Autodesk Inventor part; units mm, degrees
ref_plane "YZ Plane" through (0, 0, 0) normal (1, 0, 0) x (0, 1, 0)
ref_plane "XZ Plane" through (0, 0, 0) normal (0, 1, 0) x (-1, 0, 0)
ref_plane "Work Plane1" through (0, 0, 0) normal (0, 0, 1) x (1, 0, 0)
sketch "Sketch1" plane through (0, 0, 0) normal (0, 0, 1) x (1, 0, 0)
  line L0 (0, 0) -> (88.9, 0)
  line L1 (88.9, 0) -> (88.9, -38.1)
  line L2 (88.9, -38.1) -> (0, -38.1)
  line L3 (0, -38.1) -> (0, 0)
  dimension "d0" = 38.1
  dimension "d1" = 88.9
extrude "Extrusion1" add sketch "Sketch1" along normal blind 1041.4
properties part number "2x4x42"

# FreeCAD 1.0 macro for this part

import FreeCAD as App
import Part
import Sketcher
Q = App.Units.Quantity


def add_polygon(sketch, points):
    """Adds a closed chain of lines whose ends are joined by coincident constraints."""
    first, n = sketch.GeometryCount, len(points)
    for a, b in zip(points, points[1:] + points[:1]):
        sketch.addGeometry(Part.LineSegment(App.Vector(*a, 0), App.Vector(*b, 0)), False)
    for i in range(n):
        sketch.addConstraint(Sketcher.Constraint("Coincident", first + i, 2, first + (i + 1) % n, 1))

doc = App.newDocument("Part")
body = doc.addObject("PartDesign::Body", "Body")

# Sketch on XY plane
sketch1 = body.newObject("Sketcher::SketchObject", "Sketch")
sketch1.AttachmentSupport = (doc.getObject("XY_Plane"), [""])
sketch1.MapMode = "FlatFace"
add_polygon(sketch1, [(89, 0), (0, 0), (0, -38), (89, -38)])  # lines 0-3
sketch1.addConstraint([
    Sketcher.Constraint("Horizontal", 0),
    Sketcher.Constraint("Vertical", 1),
    Sketcher.Constraint("Horizontal", 2),
    Sketcher.Constraint("Vertical", 3),
    Sketcher.Constraint("Coincident", 0, 2, -1, 1),
    Sketcher.Constraint("DistanceX", 0, 2, 0, 1, Q("3.5 in")),
    Sketcher.Constraint("DistanceY", 1, 2, 1, 1, Q("1.5 in")),
])
pad1 = body.newObject("PartDesign::Pad", "Pad")
pad1.Profile = sketch1
pad1.Length = Q("41 in")

doc.recompute()
